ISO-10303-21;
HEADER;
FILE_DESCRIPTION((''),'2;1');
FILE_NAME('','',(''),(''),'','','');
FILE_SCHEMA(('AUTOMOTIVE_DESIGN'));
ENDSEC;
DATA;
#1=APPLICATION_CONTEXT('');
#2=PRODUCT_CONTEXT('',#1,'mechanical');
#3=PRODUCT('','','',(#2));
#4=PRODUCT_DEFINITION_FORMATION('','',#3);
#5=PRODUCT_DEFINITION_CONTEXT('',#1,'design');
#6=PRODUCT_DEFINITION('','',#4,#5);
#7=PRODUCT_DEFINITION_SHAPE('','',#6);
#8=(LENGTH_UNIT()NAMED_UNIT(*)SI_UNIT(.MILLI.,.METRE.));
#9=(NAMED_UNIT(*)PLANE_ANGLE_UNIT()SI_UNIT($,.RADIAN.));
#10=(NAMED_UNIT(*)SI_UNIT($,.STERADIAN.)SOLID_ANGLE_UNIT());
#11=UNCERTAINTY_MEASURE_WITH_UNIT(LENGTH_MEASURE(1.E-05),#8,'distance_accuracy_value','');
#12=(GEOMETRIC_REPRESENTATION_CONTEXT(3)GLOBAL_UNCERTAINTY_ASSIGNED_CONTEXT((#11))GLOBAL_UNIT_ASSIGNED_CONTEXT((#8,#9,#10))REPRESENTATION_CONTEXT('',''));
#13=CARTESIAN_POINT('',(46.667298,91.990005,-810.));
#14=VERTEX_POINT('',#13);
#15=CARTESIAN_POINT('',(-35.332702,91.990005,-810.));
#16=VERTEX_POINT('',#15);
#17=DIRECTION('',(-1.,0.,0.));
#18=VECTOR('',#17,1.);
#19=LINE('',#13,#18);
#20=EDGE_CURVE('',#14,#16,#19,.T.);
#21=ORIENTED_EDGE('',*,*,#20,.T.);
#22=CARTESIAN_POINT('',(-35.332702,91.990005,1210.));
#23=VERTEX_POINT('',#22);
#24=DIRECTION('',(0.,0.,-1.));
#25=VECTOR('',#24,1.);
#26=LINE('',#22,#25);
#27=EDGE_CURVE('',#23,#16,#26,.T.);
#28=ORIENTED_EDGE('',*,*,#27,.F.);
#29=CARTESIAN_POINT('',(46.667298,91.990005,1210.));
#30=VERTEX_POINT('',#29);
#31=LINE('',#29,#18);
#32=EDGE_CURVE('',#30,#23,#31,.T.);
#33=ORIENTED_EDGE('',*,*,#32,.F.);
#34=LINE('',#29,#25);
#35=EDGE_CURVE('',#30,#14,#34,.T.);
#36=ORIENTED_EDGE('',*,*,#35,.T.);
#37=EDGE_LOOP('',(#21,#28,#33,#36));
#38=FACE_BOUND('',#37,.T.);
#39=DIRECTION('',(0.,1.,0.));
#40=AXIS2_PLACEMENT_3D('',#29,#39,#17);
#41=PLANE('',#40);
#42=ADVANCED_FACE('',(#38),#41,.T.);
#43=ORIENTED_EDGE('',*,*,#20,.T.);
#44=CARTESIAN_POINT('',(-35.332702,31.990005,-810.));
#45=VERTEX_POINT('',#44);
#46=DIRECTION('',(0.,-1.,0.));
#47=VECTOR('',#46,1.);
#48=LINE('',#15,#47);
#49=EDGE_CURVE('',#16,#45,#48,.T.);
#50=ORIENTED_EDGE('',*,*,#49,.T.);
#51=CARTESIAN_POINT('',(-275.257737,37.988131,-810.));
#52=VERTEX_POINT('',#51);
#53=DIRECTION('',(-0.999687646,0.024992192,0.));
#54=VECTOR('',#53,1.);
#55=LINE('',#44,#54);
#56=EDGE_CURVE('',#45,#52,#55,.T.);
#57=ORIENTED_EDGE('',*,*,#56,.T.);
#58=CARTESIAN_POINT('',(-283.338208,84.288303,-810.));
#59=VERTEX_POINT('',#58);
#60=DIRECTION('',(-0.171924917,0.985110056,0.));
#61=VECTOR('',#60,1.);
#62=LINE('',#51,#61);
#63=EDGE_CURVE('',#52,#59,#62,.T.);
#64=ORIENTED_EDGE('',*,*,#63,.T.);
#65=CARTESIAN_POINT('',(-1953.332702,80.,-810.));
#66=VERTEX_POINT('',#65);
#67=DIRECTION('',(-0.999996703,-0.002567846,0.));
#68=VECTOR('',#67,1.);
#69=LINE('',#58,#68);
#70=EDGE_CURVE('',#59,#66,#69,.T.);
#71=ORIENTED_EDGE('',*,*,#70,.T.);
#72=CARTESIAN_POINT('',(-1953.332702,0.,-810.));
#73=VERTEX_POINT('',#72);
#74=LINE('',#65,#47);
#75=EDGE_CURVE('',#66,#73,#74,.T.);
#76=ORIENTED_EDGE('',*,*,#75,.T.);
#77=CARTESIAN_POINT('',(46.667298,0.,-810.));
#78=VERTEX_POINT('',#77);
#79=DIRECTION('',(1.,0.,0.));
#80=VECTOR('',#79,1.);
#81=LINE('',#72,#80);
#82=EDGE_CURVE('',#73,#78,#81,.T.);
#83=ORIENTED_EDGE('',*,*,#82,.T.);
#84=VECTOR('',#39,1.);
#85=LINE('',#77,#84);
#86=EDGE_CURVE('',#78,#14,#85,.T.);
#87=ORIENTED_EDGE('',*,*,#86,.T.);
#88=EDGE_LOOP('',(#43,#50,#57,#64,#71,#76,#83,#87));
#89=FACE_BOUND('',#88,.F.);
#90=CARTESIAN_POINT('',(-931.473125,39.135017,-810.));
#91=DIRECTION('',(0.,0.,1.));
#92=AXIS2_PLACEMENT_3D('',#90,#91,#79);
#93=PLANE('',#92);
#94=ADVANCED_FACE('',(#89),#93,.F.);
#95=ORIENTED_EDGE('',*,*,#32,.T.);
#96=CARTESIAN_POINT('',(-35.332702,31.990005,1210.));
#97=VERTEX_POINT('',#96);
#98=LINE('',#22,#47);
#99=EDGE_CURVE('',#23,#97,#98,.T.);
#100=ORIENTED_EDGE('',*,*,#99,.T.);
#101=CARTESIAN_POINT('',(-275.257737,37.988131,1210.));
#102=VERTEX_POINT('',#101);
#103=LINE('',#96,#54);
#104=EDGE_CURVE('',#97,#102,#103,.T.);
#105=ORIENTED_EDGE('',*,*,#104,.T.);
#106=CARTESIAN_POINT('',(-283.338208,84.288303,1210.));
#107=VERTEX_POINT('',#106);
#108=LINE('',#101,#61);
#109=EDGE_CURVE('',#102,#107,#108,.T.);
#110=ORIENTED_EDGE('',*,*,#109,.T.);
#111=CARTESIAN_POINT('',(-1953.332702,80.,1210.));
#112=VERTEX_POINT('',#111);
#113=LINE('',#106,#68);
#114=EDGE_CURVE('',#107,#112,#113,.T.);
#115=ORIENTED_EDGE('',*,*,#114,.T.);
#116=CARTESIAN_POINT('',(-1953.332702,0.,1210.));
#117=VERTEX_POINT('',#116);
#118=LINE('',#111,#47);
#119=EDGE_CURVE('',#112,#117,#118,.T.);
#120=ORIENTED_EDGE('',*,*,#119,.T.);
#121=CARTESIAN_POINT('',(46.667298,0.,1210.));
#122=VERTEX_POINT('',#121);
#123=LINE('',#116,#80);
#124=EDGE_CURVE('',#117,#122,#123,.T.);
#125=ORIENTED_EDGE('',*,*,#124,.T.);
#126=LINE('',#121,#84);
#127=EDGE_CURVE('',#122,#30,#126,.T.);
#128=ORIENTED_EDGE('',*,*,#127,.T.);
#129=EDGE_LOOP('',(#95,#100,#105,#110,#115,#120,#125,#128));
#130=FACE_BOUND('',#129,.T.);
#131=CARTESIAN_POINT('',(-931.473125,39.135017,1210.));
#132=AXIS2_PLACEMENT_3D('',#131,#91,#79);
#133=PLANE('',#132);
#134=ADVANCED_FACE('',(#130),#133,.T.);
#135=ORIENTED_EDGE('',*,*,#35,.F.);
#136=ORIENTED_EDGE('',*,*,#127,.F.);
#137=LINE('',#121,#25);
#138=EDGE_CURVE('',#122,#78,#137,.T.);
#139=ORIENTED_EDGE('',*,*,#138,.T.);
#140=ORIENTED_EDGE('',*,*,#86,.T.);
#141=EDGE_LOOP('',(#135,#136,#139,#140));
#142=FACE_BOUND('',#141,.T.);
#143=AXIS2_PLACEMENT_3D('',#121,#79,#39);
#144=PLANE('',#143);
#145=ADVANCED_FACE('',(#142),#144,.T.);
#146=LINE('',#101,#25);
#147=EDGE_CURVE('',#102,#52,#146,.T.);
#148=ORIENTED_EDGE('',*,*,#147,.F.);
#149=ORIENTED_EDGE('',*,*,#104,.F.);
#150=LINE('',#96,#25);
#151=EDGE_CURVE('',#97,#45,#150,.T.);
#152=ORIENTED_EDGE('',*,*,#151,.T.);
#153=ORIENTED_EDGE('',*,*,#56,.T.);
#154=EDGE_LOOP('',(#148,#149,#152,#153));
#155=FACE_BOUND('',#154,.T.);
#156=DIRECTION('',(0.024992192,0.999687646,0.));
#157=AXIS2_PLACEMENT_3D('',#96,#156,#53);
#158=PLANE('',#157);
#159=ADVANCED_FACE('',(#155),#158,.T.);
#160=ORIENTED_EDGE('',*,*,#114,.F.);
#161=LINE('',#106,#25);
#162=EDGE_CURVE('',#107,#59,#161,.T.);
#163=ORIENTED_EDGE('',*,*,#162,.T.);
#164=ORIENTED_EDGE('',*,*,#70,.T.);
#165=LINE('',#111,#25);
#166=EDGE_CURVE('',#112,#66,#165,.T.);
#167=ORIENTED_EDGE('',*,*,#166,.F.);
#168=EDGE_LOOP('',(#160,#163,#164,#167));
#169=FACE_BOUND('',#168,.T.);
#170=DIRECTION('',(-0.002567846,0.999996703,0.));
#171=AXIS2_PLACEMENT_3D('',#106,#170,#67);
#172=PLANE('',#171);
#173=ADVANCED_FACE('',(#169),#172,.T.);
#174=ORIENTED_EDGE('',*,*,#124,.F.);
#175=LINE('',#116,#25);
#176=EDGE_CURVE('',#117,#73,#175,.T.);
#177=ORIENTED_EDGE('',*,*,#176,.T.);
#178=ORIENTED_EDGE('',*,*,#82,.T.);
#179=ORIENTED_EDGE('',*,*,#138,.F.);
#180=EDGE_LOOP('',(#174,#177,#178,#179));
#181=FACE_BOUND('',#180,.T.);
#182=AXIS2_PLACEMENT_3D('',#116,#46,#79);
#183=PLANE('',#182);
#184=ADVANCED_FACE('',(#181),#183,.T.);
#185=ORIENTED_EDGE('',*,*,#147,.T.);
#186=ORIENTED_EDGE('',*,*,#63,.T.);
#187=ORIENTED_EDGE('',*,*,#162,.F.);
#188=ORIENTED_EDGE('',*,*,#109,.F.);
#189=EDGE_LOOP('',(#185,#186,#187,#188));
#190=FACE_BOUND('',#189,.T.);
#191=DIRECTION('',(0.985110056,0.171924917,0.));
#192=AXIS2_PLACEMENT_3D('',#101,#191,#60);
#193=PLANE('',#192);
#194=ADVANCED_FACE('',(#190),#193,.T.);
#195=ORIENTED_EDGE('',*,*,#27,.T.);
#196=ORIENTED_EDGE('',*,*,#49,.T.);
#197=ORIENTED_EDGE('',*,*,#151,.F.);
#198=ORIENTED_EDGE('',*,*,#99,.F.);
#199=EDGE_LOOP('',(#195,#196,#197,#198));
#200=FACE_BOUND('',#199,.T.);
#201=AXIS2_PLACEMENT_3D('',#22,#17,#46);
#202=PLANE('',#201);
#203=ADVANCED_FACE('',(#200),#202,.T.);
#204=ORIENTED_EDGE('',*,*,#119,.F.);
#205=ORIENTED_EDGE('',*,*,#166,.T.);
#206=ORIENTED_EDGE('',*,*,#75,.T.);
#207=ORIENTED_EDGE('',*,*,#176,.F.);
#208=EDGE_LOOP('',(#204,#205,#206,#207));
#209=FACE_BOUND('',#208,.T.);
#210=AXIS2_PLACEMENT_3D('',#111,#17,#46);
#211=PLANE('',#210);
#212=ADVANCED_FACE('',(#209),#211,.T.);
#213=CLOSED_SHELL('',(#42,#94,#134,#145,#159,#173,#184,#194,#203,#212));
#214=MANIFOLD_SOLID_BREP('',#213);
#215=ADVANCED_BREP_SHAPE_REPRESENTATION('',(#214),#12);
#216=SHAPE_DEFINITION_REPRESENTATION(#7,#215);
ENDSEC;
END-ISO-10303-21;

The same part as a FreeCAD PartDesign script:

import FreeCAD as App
import Part
import Sketcher

V = App.Vector

doc = App.newDocument("Part")
body = doc.addObject("PartDesign::Body", "Body")

# Sketch on XY plane
sketch1 = doc.addObject("Sketcher::SketchObject", "Sketch")
body.addObject(sketch1)
sketch1.AttachmentSupport = (doc.XY_Plane, [""])
sketch1.MapMode = "FlatFace"
sketch1.AttachmentOffset = App.Placement(V(0, 0, 1210), App.Rotation())
sketch1.addGeometry(Part.LineSegment(V(-1953, 80, 0), V(-1953, 0, 0)), False)
sketch1.addGeometry(Part.LineSegment(V(-1953, 0, 0), V(47, 0, 0)), False)
sketch1.addGeometry(Part.LineSegment(V(47, 0, 0), V(47, 92, 0)), False)
sketch1.addGeometry(Part.LineSegment(V(47, 92, 0), V(-35, 92, 0)), False)
sketch1.addGeometry(Part.LineSegment(V(-35, 92, 0), V(-35, 32, 0)), False)
sketch1.addGeometry(Part.LineSegment(V(-35, 32, 0), V(-275, 38, 0)), False)
sketch1.addGeometry(Part.LineSegment(V(-275, 38, 0), V(-283, 84, 0)), False)
sketch1.addGeometry(Part.LineSegment(V(-283, 84, 0), V(-1953, 80, 0)), False)
sketch1.addConstraint(Sketcher.Constraint("Coincident", 0, 2, 1, 1))
sketch1.addConstraint(Sketcher.Constraint("Coincident", 1, 2, 2, 1))
sketch1.addConstraint(Sketcher.Constraint("Coincident", 2, 2, 3, 1))
sketch1.addConstraint(Sketcher.Constraint("Coincident", 3, 2, 4, 1))
sketch1.addConstraint(Sketcher.Constraint("Coincident", 4, 2, 5, 1))
sketch1.addConstraint(Sketcher.Constraint("Coincident", 5, 2, 6, 1))
sketch1.addConstraint(Sketcher.Constraint("Coincident", 6, 2, 7, 1))
sketch1.addConstraint(Sketcher.Constraint("Coincident", 7, 2, 0, 1))
sketch1.addConstraint(Sketcher.Constraint("Vertical", 0))
sketch1.addConstraint(Sketcher.Constraint("Horizontal", 1))
sketch1.addConstraint(Sketcher.Constraint("Vertical", 2))
sketch1.addConstraint(Sketcher.Constraint("Horizontal", 3))
sketch1.addConstraint(Sketcher.Constraint("Vertical", 4))
sketch1.addConstraint(Sketcher.Constraint("PointOnObject", 0, 2, -1))
sketch1.addConstraint(Sketcher.Constraint("DistanceX", 1, 1, 1, 2, 2000.0))
sketch1.addConstraint(Sketcher.Constraint("DistanceX", 3, 2, 3, 1, 82.0))
sketch1.addConstraint(Sketcher.Constraint("DistanceY", 0, 2, 0, 1, 80.0))
sketch1.addConstraint(Sketcher.Constraint("DistanceY", 4, 2, 4, 1, 60.0))
sketch1.addConstraint(Sketcher.Constraint("Distance", 5, 240.0))
sketch1.addConstraint(Sketcher.Constraint("Distance", 6, 46.999999))
sketch1.addConstraint(Sketcher.Constraint("Distance", 7, 1670.0))
sketch1.addConstraint(Sketcher.Constraint("DistanceX", 0, 2, -1, 1, 1953.332702))
sketch1.addConstraint(Sketcher.Constraint("DistanceY", 6, 2, 3, 2, 7.701702))
sketch1.addConstraint(Sketcher.Constraint("DistanceY", 2, 1, 2, 2, 91.990005))
pad1 = doc.addObject("PartDesign::Pad", "Pad")
body.addObject(pad1)
pad1.Profile = sketch1
pad1.Length = 2020
pad1.Reversed = True

doc.recompute()
